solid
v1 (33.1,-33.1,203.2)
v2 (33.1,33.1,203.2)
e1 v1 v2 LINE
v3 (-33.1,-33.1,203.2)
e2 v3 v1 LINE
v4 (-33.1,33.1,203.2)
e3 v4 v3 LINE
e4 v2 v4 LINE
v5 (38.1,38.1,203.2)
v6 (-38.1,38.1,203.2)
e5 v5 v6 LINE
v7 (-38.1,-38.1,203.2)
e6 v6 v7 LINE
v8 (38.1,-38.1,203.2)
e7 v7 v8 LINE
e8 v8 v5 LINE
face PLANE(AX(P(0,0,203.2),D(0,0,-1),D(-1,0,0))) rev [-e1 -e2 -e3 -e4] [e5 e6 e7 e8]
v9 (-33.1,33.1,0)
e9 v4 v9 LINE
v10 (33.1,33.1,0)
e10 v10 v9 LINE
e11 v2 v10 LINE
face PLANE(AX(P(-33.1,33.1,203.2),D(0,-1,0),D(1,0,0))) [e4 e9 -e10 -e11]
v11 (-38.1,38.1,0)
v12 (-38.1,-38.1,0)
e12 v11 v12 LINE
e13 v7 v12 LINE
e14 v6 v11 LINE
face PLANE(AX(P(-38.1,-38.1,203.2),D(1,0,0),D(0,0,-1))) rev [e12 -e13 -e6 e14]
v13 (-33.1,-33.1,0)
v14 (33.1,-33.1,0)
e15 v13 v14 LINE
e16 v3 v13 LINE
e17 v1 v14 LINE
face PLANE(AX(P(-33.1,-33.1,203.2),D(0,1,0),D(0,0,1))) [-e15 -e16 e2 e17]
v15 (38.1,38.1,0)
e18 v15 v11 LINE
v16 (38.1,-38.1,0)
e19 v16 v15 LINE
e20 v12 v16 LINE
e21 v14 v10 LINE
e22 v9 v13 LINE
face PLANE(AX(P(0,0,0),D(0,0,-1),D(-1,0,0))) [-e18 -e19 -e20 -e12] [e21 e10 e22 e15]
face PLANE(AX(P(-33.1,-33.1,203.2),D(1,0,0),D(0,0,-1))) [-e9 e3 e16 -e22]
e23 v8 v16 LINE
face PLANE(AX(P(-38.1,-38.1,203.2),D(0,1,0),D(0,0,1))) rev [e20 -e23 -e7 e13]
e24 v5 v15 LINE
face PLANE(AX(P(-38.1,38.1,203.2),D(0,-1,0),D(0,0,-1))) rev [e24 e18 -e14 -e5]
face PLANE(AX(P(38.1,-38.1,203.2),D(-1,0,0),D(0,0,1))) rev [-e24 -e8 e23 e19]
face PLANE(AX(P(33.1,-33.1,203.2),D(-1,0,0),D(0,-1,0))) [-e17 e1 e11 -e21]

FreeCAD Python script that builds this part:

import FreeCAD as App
import Part
import Sketcher
Q = App.Units.Quantity


def add_polygon(sketch, points):
    """Adds a closed chain of lines whose ends are joined by coincident constraints."""
    first, n = sketch.GeometryCount, len(points)
    for a, b in zip(points, points[1:] + points[:1]):
        sketch.addGeometry(Part.LineSegment(App.Vector(*a, 0), App.Vector(*b, 0)), False)
    for i in range(n):
        sketch.addConstraint(Sketcher.Constraint("Coincident", first + i, 2, first + (i + 1) % n, 1))

doc = App.newDocument("Part")
body = doc.addObject("PartDesign::Body", "Body")

# Sketch on XY plane
sketch1 = body.newObject("Sketcher::SketchObject", "Sketch")
sketch1.AttachmentSupport = (doc.getObject("XY_Plane"), [""])
sketch1.MapMode = "FlatFace"
add_polygon(sketch1, [(-38, 38), (-38, -38), (38, -38), (38, 38)])  # lines 0-3
add_polygon(sketch1, [(33, -33), (-33, -33), (-33, 33), (33, 33)])  # lines 4-7
sketch1.addConstraint(Sketcher.Constraint("Vertical", 0))
sketch1.addConstraint(Sketcher.Constraint("Horizontal", 1))
sketch1.addConstraint(Sketcher.Constraint("Vertical", 2))
sketch1.addConstraint(Sketcher.Constraint("Horizontal", 3))
sketch1.addConstraint(Sketcher.Constraint("Horizontal", 4))
sketch1.addConstraint(Sketcher.Constraint("Vertical", 5))
sketch1.addConstraint(Sketcher.Constraint("Horizontal", 6))
sketch1.addConstraint(Sketcher.Constraint("Vertical", 7))
sketch1.addConstraint(Sketcher.Constraint("Symmetric", 0, 2, 2, 2, -1, 1))
sketch1.addConstraint(Sketcher.Constraint("Symmetric", 4, 2, 6, 2, -1, 1))
sketch1.addConstraint(Sketcher.Constraint("Equal", 3, 0))
sketch1.addConstraint(Sketcher.Constraint("Equal", 6, 5))
sketch1.addConstraint(Sketcher.Constraint("DistanceX", 1, 1, 1, 2, Q("3 in")))
sketch1.addConstraint(Sketcher.Constraint("DistanceX", 4, 2, 4, 1, 66.2))
pad1 = body.newObject("PartDesign::Pad", "Pad")
pad1.Profile = sketch1
pad1.Length = Q("8 in")

doc.recompute()
